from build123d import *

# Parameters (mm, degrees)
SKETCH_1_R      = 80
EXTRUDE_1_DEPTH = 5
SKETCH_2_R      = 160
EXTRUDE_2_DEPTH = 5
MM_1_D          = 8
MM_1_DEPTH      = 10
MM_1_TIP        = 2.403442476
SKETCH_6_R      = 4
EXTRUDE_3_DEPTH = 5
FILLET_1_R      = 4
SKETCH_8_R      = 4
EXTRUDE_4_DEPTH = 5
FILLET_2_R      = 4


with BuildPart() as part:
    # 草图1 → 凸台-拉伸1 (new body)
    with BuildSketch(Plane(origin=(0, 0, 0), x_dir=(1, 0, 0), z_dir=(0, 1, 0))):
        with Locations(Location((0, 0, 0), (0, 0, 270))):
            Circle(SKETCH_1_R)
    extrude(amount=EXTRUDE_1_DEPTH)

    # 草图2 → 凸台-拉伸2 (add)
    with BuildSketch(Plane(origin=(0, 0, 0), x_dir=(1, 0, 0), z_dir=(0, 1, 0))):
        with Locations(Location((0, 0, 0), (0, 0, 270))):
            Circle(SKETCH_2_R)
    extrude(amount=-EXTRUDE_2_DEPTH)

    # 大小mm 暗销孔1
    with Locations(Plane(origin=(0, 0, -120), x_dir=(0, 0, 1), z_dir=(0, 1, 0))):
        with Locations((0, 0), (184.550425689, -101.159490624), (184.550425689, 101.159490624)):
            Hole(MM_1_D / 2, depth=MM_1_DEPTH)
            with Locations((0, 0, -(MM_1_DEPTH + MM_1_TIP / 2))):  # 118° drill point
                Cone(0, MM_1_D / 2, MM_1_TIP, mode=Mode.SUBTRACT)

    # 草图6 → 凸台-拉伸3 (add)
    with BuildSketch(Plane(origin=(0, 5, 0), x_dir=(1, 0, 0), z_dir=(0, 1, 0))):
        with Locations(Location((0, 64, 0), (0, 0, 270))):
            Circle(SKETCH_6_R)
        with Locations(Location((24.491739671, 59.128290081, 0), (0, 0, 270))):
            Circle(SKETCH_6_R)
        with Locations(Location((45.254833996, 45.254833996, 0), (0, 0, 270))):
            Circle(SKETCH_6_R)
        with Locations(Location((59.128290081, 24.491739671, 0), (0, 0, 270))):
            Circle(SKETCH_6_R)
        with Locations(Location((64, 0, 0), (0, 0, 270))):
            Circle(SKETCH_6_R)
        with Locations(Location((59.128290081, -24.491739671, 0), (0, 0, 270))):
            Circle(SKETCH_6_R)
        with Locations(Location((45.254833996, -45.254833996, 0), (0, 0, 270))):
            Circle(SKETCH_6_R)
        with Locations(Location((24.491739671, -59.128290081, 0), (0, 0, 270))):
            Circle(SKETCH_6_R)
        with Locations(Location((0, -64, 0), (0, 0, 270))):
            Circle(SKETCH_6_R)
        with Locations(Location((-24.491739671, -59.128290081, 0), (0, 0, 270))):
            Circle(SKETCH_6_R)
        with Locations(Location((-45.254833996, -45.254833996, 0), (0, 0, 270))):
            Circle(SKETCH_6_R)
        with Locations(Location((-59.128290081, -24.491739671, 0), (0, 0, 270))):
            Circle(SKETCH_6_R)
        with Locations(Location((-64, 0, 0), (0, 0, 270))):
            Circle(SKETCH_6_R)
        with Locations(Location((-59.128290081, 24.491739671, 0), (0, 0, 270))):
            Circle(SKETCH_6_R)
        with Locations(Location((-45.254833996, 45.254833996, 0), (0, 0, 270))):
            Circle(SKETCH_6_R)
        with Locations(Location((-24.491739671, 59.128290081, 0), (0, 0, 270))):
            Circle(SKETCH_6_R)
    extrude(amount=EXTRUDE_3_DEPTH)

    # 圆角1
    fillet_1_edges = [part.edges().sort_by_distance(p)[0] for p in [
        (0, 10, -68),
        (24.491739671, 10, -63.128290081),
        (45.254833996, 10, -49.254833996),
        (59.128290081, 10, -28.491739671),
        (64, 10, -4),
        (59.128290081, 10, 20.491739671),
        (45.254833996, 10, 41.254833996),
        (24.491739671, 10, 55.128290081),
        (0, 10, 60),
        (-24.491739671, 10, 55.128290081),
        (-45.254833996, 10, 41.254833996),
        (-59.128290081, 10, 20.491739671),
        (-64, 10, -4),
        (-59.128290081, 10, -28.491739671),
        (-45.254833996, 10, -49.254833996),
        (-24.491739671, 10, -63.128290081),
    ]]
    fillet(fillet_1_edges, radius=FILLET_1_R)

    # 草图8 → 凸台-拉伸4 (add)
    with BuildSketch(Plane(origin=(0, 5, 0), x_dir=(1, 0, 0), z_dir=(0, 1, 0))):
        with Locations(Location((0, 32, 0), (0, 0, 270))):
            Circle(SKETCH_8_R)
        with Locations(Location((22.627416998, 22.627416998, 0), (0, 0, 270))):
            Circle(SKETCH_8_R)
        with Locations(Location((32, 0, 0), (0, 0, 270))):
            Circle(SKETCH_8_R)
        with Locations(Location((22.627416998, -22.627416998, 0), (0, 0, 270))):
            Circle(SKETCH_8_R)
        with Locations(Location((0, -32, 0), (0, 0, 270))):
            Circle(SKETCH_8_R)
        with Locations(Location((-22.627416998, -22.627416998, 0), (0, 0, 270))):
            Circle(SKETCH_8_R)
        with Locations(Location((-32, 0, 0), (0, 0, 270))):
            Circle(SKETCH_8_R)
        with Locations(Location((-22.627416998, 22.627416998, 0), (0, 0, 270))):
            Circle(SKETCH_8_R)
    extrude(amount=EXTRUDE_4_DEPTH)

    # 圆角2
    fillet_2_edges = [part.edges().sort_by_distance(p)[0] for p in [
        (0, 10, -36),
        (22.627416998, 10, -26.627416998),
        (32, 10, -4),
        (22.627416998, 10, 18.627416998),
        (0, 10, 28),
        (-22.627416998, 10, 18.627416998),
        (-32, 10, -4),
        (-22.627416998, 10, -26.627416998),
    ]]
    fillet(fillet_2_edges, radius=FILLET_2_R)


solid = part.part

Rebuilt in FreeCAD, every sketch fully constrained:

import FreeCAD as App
import Part
import Sketcher

V = App.Vector
Q = App.Units.Quantity


def edges_at(feature, points):
    """Names of the edges that pass closest to the given points."""
    edges = feature.Shape.Edges
    near = lambda p: min(range(len(edges)), key=lambda i: edges[i].distToShape(Part.Vertex(*p))[0])
    return sorted({f"Edge{near(p) + 1}" for p in points})

doc = App.newDocument("Part")
params = doc.addObject("Spreadsheet::Sheet", "Params")
for row, (alias, value) in enumerate([
    ("sketch1_diameter", "160 mm"),
    ("pad1_length", "5 mm"),
    ("sketch2_diameter", "320 mm"),
    ("pad2_length", "5 mm"),
    ("sketch3_diameter", "8 mm"),
    ("hole_diameter", "8 mm"),
    ("hole_depth", "10 mm"),
    ("sketch4_diameter", "8 mm"),
    ("pad3_length", "5 mm"),
    ("fillet_radius", "4 mm"),
    ("sketch5_diameter", "8 mm"),
    ("pad4_length", "5 mm"),
    ("fillet2_radius", "4 mm"),
], start=1):
    params.set(f"A{row}", alias)
    params.set(f"B{row}", "=" + value)
    params.setAlias(f"B{row}", alias)

body = doc.addObject("PartDesign::Body", "Body")

# Sketch on XZ plane
sketch1 = doc.addObject("Sketcher::SketchObject", "Sketch")
body.addObject(sketch1)
sketch1.AttachmentSupport = (doc.XZ_Plane, [""])
sketch1.MapMode = "FlatFace"
sketch1.addGeometry(Part.Circle(V(0, 0, 0), V(0, 0, 1), 80), False)
sketch1.addConstraint([
    Sketcher.Constraint("Coincident", 0, 3, -1, 1),
    Sketcher.Constraint("Diameter", 0, Q("160 mm")),
])
sketch1.setExpression("Constraints[1]", "Params.sketch1_diameter")
pad1 = doc.addObject("PartDesign::Pad", "Pad")
body.addObject(pad1)
pad1.Profile = sketch1
pad1.setExpression("Length", "Params.pad1_length")
pad1.Reversed = True

# Sketch on XZ plane
sketch2 = doc.addObject("Sketcher::SketchObject", "Sketch001")
body.addObject(sketch2)
sketch2.AttachmentSupport = (doc.XZ_Plane, [""])
sketch2.MapMode = "FlatFace"
sketch2.addGeometry(Part.Circle(V(0, 0, 0), V(0, 0, 1), 160), False)
sketch2.addConstraint([
    Sketcher.Constraint("Coincident", 0, 3, -1, 1),
    Sketcher.Constraint("Diameter", 0, Q("320 mm")),
])
sketch2.setExpression("Constraints[1]", "Params.sketch2_diameter")
pad2 = doc.addObject("PartDesign::Pad", "Pad001")
body.addObject(pad2)
pad2.Profile = sketch2
pad2.setExpression("Length", "Params.pad2_length")

# Sketch on XZ plane
sketch3 = doc.addObject("Sketcher::SketchObject", "Sketch002")
body.addObject(sketch3)
sketch3.AttachmentSupport = (doc.XZ_Plane, [""])
sketch3.MapMode = "FlatFace"
sketch3.addGeometry([
    Part.Circle(V(0, -120, 0), V(0, 0, 1), 4),
    Part.Circle(V(-101.2, 64.6, 0), V(0, 0, 1), 4),
    Part.Circle(V(101.2, 64.6, 0), V(0, 0, 1), 4),
], False)
sketch3.addConstraint([
    Sketcher.Constraint("Equal", 0, 1),
    Sketcher.Constraint("Equal", 1, 2),
    Sketcher.Constraint("Symmetric", 1, 3, 2, 3, -2),
    Sketcher.Constraint("PointOnObject", 0, 3, -2),
    Sketcher.Constraint("Diameter", 0, Q("8 mm")),
    Sketcher.Constraint("DistanceY", 0, 3, -1, 1, Q("120 mm")),
    Sketcher.Constraint("DistanceX", 1, 3, -1, 1, Q("101.159491 mm")),
    Sketcher.Constraint("DistanceY", -1, 1, 1, 3, Q("64.550426 mm")),
])
sketch3.setExpression("Constraints[4]", "Params.sketch3_diameter")
doc.recompute()
hole = doc.addObject("PartDesign::Hole", "Hole")
body.addObject(hole)
hole.Profile = sketch3
hole.ThreadType = "None"
hole.setExpression("Diameter", "Params.hole_diameter")
hole.DepthType = "Dimension"
hole.setExpression("Depth", "Params.hole_depth")
hole.DrillPoint = "Angled"
hole.DrillPointAngle = 118
hole.Reversed = True

# Sketch on XZ plane
sketch4 = doc.addObject("Sketcher::SketchObject", "Sketch003")
body.addObject(sketch4)
sketch4.AttachmentSupport = (doc.XZ_Plane, [""])
sketch4.MapMode = "FlatFace"
sketch4.AttachmentOffset = App.Placement(V(0, 0, -5), App.Rotation())
sketch4.addGeometry([
    Part.Circle(V(0, -64, 0), V(0, 0, 1), 4),  # 0
    Part.Circle(V(24.5, -59.1, 0), V(0, 0, 1), 4),  # 1
    Part.Circle(V(45.3, -45.3, 0), V(0, 0, 1), 4),  # 2
    Part.Circle(V(59.1, -24.5, 0), V(0, 0, 1), 4),  # 3
    Part.Circle(V(64, 0, 0), V(0, 0, 1), 4),  # 4
    Part.Circle(V(59.1, 24.5, 0), V(0, 0, 1), 4),  # 5
    Part.Circle(V(45.3, 45.3, 0), V(0, 0, 1), 4),  # 6
    Part.Circle(V(24.5, 59.1, 0), V(0, 0, 1), 4),  # 7
    Part.Circle(V(0, 64, 0), V(0, 0, 1), 4),  # 8
    Part.Circle(V(-24.5, 59.1, 0), V(0, 0, 1), 4),  # 9
    Part.Circle(V(-45.3, 45.3, 0), V(0, 0, 1), 4),  # 10
    Part.Circle(V(-59.1, 24.5, 0), V(0, 0, 1), 4),  # 11
    Part.Circle(V(-64, 0, 0), V(0, 0, 1), 4),  # 12
    Part.Circle(V(-59.1, -24.5, 0), V(0, 0, 1), 4),  # 13
    Part.Circle(V(-45.3, -45.3, 0), V(0, 0, 1), 4),  # 14
    Part.Circle(V(-24.5, -59.1, 0), V(0, 0, 1), 4),  # 15
], False)
sketch4.addConstraint([
    Sketcher.Constraint("Equal", 0, 1),
    Sketcher.Constraint("Equal", 1, 2),
    Sketcher.Constraint("Equal", 2, 3),
    Sketcher.Constraint("Equal", 3, 4),
    Sketcher.Constraint("Equal", 4, 5),
    Sketcher.Constraint("Equal", 5, 6),
    Sketcher.Constraint("Equal", 6, 7),
    Sketcher.Constraint("Equal", 7, 8),
    Sketcher.Constraint("Equal", 8, 9),
    Sketcher.Constraint("Equal", 9, 10),
    Sketcher.Constraint("Equal", 10, 11),
    Sketcher.Constraint("Equal", 11, 12),
    Sketcher.Constraint("Equal", 12, 13),
    Sketcher.Constraint("Equal", 13, 14),
    Sketcher.Constraint("Equal", 14, 15),
    Sketcher.Constraint("Symmetric", 0, 3, 8, 3, -1, 1),
    Sketcher.Constraint("Symmetric", 1, 3, 9, 3, -1, 1),
    Sketcher.Constraint("Symmetric", 2, 3, 10, 3, -1, 1),
    Sketcher.Constraint("Symmetric", 3, 3, 11, 3, -1, 1),
    Sketcher.Constraint("Symmetric", 4, 3, 12, 3, -1, 1),
    Sketcher.Constraint("Symmetric", 5, 3, 13, 3, -1, 1),
    Sketcher.Constraint("Symmetric", 6, 3, 14, 3, -1, 1),
    Sketcher.Constraint("Symmetric", 7, 3, 15, 3, -1, 1),
    Sketcher.Constraint("Symmetric", 7, 3, 9, 3, -2),
    Sketcher.Constraint("Symmetric", 6, 3, 10, 3, -2),
    Sketcher.Constraint("Symmetric", 5, 3, 11, 3, -2),
    Sketcher.Constraint("PointOnObject", 0, 3, -2),
    Sketcher.Constraint("PointOnObject", 4, 3, -1),
    Sketcher.Constraint("Diameter", 0, Q("8 mm")),
    Sketcher.Constraint("DistanceY", 0, 3, -1, 1, Q("64 mm")),
    Sketcher.Constraint("DistanceX", -1, 1, 4, 3, Q("64 mm")),
    Sketcher.Constraint("DistanceX", -1, 1, 1, 3, Q("24.49174 mm")),
    Sketcher.Constraint("DistanceY", 1, 3, -1, 1, Q("59.12829 mm")),
    Sketcher.Constraint("DistanceX", -1, 1, 3, 3, Q("59.12829 mm")),
    Sketcher.Constraint("DistanceY", 3, 3, -1, 1, Q("24.49174 mm")),
    Sketcher.Constraint("DistanceX", -1, 1, 2, 3, Q("45.254834 mm")),
    Sketcher.Constraint("DistanceY", 2, 3, -1, 1, Q("45.254834 mm")),
])
sketch4.setExpression("Constraints[28]", "Params.sketch4_diameter")
pad3 = doc.addObject("PartDesign::Pad", "Pad002")
body.addObject(pad3)
pad3.Profile = sketch4
pad3.setExpression("Length", "Params.pad3_length")
pad3.Reversed = True
doc.recompute()

fillet = doc.addObject("PartDesign::Fillet", "Fillet")
body.addObject(fillet)
fillet.Base = (pad3, edges_at(pad3, [
    (0, 10, -68),
    (24.492, 10, -63.128),
    (45.255, 10, -49.255),
    (59.128, 10, -28.492),
    (64, 10, -4),
    (59.128, 10, 20.492),
    (45.255, 10, 41.255),
    (24.492, 10, 55.128),
    (0, 10, 60),
    (-24.492, 10, 55.128),
    (-45.255, 10, 41.255),
    (-59.128, 10, 20.492),
    (-64, 10, -4),
    (-59.128, 10, -28.492),
    (-45.255, 10, -49.255),
    (-24.492, 10, -63.128),
]))
fillet.setExpression("Radius", "Params.fillet_radius")

# Sketch on XZ plane
sketch5 = doc.addObject("Sketcher::SketchObject", "Sketch004")
body.addObject(sketch5)
sketch5.AttachmentSupport = (doc.XZ_Plane, [""])
sketch5.MapMode = "FlatFace"
sketch5.AttachmentOffset = App.Placement(V(0, 0, -5), App.Rotation())
sketch5.addGeometry([
    Part.Circle(V(0, -32, 0), V(0, 0, 1), 4),  # 0
    Part.Circle(V(22.6, -22.6, 0), V(0, 0, 1), 4),  # 1
    Part.Circle(V(32, 0, 0), V(0, 0, 1), 4),  # 2
    Part.Circle(V(22.6, 22.6, 0), V(0, 0, 1), 4),  # 3
    Part.Circle(V(0, 32, 0), V(0, 0, 1), 4),  # 4
    Part.Circle(V(-22.6, 22.6, 0), V(0, 0, 1), 4),  # 5
    Part.Circle(V(-32, 0, 0), V(0, 0, 1), 4),  # 6
    Part.Circle(V(-22.6, -22.6, 0), V(0, 0, 1), 4),  # 7
], False)
sketch5.addConstraint([
    Sketcher.Constraint("Equal", 0, 1),
    Sketcher.Constraint("Equal", 1, 2),
    Sketcher.Constraint("Equal", 2, 3),
    Sketcher.Constraint("Equal", 3, 4),
    Sketcher.Constraint("Equal", 4, 5),
    Sketcher.Constraint("Equal", 5, 6),
    Sketcher.Constraint("Equal", 6, 7),
    Sketcher.Constraint("Symmetric", 0, 3, 4, 3, -1, 1),
    Sketcher.Constraint("Symmetric", 1, 3, 5, 3, -1, 1),
    Sketcher.Constraint("Symmetric", 2, 3, 6, 3, -1, 1),
    Sketcher.Constraint("Symmetric", 3, 3, 7, 3, -1, 1),
    Sketcher.Constraint("Symmetric", 3, 3, 5, 3, -2),
    Sketcher.Constraint("PointOnObject", 0, 3, -2),
    Sketcher.Constraint("PointOnObject", 2, 3, -1),
    Sketcher.Constraint("Diameter", 0, Q("8 mm")),
    Sketcher.Constraint("DistanceY", 0, 3, -1, 1, Q("32 mm")),
    Sketcher.Constraint("DistanceX", -1, 1, 2, 3, Q("32 mm")),
    Sketcher.Constraint("DistanceX", -1, 1, 1, 3, Q("22.627417 mm")),
    Sketcher.Constraint("DistanceY", 1, 3, -1, 1, Q("22.627417 mm")),
])
sketch5.setExpression("Constraints[14]", "Params.sketch5_diameter")
pad4 = doc.addObject("PartDesign::Pad", "Pad003")
body.addObject(pad4)
pad4.Profile = sketch5
pad4.setExpression("Length", "Params.pad4_length")
pad4.Reversed = True
doc.recompute()

fillet2 = doc.addObject("PartDesign::Fillet", "Fillet001")
body.addObject(fillet2)
fillet2.Base = (pad4, edges_at(pad4, [
    (0, 10, -36),
    (22.627, 10, -26.627),
    (32, 10, -4),
    (22.627, 10, 18.627),
    (0, 10, 28),
    (-22.627, 10, 18.627),
    (-32, 10, -4),
    (-22.627, 10, -26.627),
]))
fillet2.setExpression("Radius", "Params.fillet2_radius")

doc.recompute()
